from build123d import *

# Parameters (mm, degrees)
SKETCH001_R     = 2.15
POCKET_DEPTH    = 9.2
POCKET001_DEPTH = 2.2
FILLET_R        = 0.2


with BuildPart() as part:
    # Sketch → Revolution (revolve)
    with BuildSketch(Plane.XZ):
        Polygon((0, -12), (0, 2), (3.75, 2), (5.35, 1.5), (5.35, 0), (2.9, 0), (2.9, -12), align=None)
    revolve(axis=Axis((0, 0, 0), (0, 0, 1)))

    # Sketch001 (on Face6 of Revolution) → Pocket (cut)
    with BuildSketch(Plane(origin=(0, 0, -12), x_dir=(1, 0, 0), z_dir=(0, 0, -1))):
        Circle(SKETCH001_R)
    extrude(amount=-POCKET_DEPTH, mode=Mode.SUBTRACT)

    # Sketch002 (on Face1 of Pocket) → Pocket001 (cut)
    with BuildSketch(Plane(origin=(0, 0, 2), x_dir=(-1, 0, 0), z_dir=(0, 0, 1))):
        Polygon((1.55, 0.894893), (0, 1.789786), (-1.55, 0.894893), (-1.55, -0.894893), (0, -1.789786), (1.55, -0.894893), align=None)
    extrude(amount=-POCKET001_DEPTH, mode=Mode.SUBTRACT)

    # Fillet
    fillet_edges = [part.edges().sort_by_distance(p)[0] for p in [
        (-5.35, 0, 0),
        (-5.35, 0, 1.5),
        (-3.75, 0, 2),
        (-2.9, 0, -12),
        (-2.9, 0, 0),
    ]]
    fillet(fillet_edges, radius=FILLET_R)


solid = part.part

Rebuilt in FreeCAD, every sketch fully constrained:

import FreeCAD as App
import Part
import Sketcher

V = App.Vector
Q = App.Units.Quantity


def edges_at(feature, points):
    """Names of the edges that pass closest to the given points."""
    edges = feature.Shape.Edges
    near = lambda p: min(range(len(edges)), key=lambda i: edges[i].distToShape(Part.Vertex(*p))[0])
    return sorted({f"Edge{near(p) + 1}" for p in points})

doc = App.newDocument("Part")
params = doc.addObject("Spreadsheet::Sheet", "Params")
for row, (alias, value) in enumerate([
    ("sketch1_height", "14 mm"),
    ("sketch1_height2", "12 mm"),
    ("sketch1_width", "2.9 mm"),
    ("sketch1_height3", "1.5 mm"),
    ("sketch1_width2", "2.45 mm"),
    ("revolution_angle", "360 deg"),
    ("sketch2_diameter", "4.3 mm"),
    ("pocket1_length", "9.2 mm"),
    ("pocket2_length", "2.2 mm"),
    ("fillet_radius", "0.2 mm"),
], start=1):
    params.set(f"A{row}", alias)
    params.set(f"B{row}", "=" + value)
    params.setAlias(f"B{row}", alias)

body = doc.addObject("PartDesign::Body", "Body")

# Sketch on XZ plane
sketch1 = doc.addObject("Sketcher::SketchObject", "Sketch")
body.addObject(sketch1)
sketch1.AttachmentSupport = (doc.XZ_Plane, [""])
sketch1.MapMode = "FlatFace"
sketch1.addGeometry([
    Part.LineSegment(V(0, 2, 0), V(0, -12, 0)),  # 0
    Part.LineSegment(V(0, -12, 0), V(2.9, -12, 0)),  # 1
    Part.LineSegment(V(2.9, -12, 0), V(2.9, 0, 0)),  # 2
    Part.LineSegment(V(2.9, 0, 0), V(5.35, 0, 0)),  # 3
    Part.LineSegment(V(5.35, 0, 0), V(5.35, 1.5, 0)),  # 4
    Part.LineSegment(V(5.35, 1.5, 0), V(3.75, 2, 0)),  # 5
    Part.LineSegment(V(3.75, 2, 0), V(0, 2, 0)),  # 6
], False)
sketch1.addConstraint([
    Sketcher.Constraint("Coincident", 0, 2, 1, 1),
    Sketcher.Constraint("Coincident", 1, 2, 2, 1),
    Sketcher.Constraint("Coincident", 2, 2, 3, 1),
    Sketcher.Constraint("Coincident", 3, 2, 4, 1),
    Sketcher.Constraint("Coincident", 4, 2, 5, 1),
    Sketcher.Constraint("Coincident", 5, 2, 6, 1),
    Sketcher.Constraint("Coincident", 6, 2, 0, 1),
    Sketcher.Constraint("Vertical", 0),
    Sketcher.Constraint("Horizontal", 1),
    Sketcher.Constraint("Vertical", 2),
    Sketcher.Constraint("Horizontal", 3),
    Sketcher.Constraint("Vertical", 4),
    Sketcher.Constraint("Horizontal", 6),
    Sketcher.Constraint("PointOnObject", 0, 2, -2),
    Sketcher.Constraint("PointOnObject", 2, 2, -1),
    Sketcher.Constraint("DistanceY", 0, 2, 0, 1, 14.0),
    Sketcher.Constraint("DistanceY", 2, 1, 2, 2, 12.0),
    Sketcher.Constraint("DistanceX", 1, 1, 1, 2, 2.9),
    Sketcher.Constraint("DistanceY", 4, 1, 4, 2, 1.5),
    Sketcher.Constraint("DistanceX", 3, 1, 3, 2, 2.45),
    Sketcher.Constraint("DistanceX", 6, 2, 6, 1, 3.75),
])
sketch1.setExpression("Constraints[15]", "Params.sketch1_height")
sketch1.setExpression("Constraints[16]", "Params.sketch1_height2")
sketch1.setExpression("Constraints[17]", "Params.sketch1_width")
sketch1.setExpression("Constraints[18]", "Params.sketch1_height3")
sketch1.setExpression("Constraints[19]", "Params.sketch1_width2")
revolution = doc.addObject("PartDesign::Revolution", "Revolution")
body.addObject(revolution)
revolution.Profile = sketch1
revolution.ReferenceAxis = (sketch1, ["V_Axis"])
revolution.setExpression("Angle", "Params.revolution_angle")

# Sketch on XY plane
sketch2 = doc.addObject("Sketcher::SketchObject", "Sketch001")
body.addObject(sketch2)
sketch2.AttachmentSupport = (doc.XY_Plane, [""])
sketch2.MapMode = "FlatFace"
sketch2.AttachmentOffset = App.Placement(V(0, 0, -12), App.Rotation())
sketch2.addGeometry(Part.Circle(V(0, 0, 0), V(0, 0, 1), 2.15), False)
sketch2.addConstraint([
    Sketcher.Constraint("Coincident", 0, 3, -1, 1),
    Sketcher.Constraint("Diameter", 0, 4.3),
])
sketch2.setExpression("Constraints[1]", "Params.sketch2_diameter")
pocket1 = doc.addObject("PartDesign::Pocket", "Pocket")
body.addObject(pocket1)
pocket1.Profile = sketch2
pocket1.setExpression("Length", "Params.pocket1_length")
pocket1.Reversed = True

# Sketch on XY plane
sketch3 = doc.addObject("Sketcher::SketchObject", "Sketch002")
body.addObject(sketch3)
sketch3.AttachmentSupport = (doc.XY_Plane, [""])
sketch3.MapMode = "FlatFace"
sketch3.AttachmentOffset = App.Placement(V(0, 0, 2), App.Rotation())
sketch3.addGeometry([
    Part.LineSegment(V(-1.55, -0.894893, 0), V(0, -1.789786, 0)),  # 0
    Part.LineSegment(V(0, -1.789786, 0), V(1.55, -0.894893, 0)),  # 1
    Part.LineSegment(V(1.55, -0.894893, 0), V(1.55, 0.894893, 0)),  # 2
    Part.LineSegment(V(1.55, 0.894893, 0), V(0, 1.789786, 0)),  # 3
    Part.LineSegment(V(0, 1.789786, 0), V(-1.55, 0.894893, 0)),  # 4
    Part.LineSegment(V(-1.55, 0.894893, 0), V(-1.55, -0.894893, 0)),  # 5
], False)
sketch3.addConstraint([
    Sketcher.Constraint("Coincident", 0, 2, 1, 1),
    Sketcher.Constraint("Coincident", 1, 2, 2, 1),
    Sketcher.Constraint("Coincident", 2, 2, 3, 1),
    Sketcher.Constraint("Coincident", 3, 2, 4, 1),
    Sketcher.Constraint("Coincident", 4, 2, 5, 1),
    Sketcher.Constraint("Coincident", 5, 2, 0, 1),
    Sketcher.Constraint("Vertical", 2),
    Sketcher.Constraint("Vertical", 5),
    Sketcher.Constraint("Symmetric", 0, 2, 3, 2, -1, 1),
    Sketcher.Constraint("Symmetric", 1, 2, 4, 2, -1, 1),
    Sketcher.Constraint("PointOnObject", 0, 2, -2),
    Sketcher.Constraint("Parallel", 0, 3),
    Sketcher.Constraint("Horizontal", 2, 2, 4, 2),
    Sketcher.Constraint("Angle", 0, Q("-30.000002 deg")),
    Sketcher.Constraint("DistanceX", 4, 2, 2, 2, 3.1),
    Sketcher.Constraint("DistanceY", 2, 1, 2, 2, 1.789786),
])
pocket2 = doc.addObject("PartDesign::Pocket", "Pocket001")
body.addObject(pocket2)
pocket2.Profile = sketch3
pocket2.setExpression("Length", "Params.pocket2_length")
doc.recompute()

fillet = doc.addObject("PartDesign::Fillet", "Fillet")
body.addObject(fillet)
fillet.Base = (pocket2, edges_at(pocket2, [
    (-5.35, 0, 0),
    (-5.35, 0, 1.5),
    (-3.75, 0, 2),
    (-2.9, 0, -12),
    (-2.9, 0, 0),
]))
fillet.setExpression("Radius", "Params.fillet_radius")

doc.recompute()
